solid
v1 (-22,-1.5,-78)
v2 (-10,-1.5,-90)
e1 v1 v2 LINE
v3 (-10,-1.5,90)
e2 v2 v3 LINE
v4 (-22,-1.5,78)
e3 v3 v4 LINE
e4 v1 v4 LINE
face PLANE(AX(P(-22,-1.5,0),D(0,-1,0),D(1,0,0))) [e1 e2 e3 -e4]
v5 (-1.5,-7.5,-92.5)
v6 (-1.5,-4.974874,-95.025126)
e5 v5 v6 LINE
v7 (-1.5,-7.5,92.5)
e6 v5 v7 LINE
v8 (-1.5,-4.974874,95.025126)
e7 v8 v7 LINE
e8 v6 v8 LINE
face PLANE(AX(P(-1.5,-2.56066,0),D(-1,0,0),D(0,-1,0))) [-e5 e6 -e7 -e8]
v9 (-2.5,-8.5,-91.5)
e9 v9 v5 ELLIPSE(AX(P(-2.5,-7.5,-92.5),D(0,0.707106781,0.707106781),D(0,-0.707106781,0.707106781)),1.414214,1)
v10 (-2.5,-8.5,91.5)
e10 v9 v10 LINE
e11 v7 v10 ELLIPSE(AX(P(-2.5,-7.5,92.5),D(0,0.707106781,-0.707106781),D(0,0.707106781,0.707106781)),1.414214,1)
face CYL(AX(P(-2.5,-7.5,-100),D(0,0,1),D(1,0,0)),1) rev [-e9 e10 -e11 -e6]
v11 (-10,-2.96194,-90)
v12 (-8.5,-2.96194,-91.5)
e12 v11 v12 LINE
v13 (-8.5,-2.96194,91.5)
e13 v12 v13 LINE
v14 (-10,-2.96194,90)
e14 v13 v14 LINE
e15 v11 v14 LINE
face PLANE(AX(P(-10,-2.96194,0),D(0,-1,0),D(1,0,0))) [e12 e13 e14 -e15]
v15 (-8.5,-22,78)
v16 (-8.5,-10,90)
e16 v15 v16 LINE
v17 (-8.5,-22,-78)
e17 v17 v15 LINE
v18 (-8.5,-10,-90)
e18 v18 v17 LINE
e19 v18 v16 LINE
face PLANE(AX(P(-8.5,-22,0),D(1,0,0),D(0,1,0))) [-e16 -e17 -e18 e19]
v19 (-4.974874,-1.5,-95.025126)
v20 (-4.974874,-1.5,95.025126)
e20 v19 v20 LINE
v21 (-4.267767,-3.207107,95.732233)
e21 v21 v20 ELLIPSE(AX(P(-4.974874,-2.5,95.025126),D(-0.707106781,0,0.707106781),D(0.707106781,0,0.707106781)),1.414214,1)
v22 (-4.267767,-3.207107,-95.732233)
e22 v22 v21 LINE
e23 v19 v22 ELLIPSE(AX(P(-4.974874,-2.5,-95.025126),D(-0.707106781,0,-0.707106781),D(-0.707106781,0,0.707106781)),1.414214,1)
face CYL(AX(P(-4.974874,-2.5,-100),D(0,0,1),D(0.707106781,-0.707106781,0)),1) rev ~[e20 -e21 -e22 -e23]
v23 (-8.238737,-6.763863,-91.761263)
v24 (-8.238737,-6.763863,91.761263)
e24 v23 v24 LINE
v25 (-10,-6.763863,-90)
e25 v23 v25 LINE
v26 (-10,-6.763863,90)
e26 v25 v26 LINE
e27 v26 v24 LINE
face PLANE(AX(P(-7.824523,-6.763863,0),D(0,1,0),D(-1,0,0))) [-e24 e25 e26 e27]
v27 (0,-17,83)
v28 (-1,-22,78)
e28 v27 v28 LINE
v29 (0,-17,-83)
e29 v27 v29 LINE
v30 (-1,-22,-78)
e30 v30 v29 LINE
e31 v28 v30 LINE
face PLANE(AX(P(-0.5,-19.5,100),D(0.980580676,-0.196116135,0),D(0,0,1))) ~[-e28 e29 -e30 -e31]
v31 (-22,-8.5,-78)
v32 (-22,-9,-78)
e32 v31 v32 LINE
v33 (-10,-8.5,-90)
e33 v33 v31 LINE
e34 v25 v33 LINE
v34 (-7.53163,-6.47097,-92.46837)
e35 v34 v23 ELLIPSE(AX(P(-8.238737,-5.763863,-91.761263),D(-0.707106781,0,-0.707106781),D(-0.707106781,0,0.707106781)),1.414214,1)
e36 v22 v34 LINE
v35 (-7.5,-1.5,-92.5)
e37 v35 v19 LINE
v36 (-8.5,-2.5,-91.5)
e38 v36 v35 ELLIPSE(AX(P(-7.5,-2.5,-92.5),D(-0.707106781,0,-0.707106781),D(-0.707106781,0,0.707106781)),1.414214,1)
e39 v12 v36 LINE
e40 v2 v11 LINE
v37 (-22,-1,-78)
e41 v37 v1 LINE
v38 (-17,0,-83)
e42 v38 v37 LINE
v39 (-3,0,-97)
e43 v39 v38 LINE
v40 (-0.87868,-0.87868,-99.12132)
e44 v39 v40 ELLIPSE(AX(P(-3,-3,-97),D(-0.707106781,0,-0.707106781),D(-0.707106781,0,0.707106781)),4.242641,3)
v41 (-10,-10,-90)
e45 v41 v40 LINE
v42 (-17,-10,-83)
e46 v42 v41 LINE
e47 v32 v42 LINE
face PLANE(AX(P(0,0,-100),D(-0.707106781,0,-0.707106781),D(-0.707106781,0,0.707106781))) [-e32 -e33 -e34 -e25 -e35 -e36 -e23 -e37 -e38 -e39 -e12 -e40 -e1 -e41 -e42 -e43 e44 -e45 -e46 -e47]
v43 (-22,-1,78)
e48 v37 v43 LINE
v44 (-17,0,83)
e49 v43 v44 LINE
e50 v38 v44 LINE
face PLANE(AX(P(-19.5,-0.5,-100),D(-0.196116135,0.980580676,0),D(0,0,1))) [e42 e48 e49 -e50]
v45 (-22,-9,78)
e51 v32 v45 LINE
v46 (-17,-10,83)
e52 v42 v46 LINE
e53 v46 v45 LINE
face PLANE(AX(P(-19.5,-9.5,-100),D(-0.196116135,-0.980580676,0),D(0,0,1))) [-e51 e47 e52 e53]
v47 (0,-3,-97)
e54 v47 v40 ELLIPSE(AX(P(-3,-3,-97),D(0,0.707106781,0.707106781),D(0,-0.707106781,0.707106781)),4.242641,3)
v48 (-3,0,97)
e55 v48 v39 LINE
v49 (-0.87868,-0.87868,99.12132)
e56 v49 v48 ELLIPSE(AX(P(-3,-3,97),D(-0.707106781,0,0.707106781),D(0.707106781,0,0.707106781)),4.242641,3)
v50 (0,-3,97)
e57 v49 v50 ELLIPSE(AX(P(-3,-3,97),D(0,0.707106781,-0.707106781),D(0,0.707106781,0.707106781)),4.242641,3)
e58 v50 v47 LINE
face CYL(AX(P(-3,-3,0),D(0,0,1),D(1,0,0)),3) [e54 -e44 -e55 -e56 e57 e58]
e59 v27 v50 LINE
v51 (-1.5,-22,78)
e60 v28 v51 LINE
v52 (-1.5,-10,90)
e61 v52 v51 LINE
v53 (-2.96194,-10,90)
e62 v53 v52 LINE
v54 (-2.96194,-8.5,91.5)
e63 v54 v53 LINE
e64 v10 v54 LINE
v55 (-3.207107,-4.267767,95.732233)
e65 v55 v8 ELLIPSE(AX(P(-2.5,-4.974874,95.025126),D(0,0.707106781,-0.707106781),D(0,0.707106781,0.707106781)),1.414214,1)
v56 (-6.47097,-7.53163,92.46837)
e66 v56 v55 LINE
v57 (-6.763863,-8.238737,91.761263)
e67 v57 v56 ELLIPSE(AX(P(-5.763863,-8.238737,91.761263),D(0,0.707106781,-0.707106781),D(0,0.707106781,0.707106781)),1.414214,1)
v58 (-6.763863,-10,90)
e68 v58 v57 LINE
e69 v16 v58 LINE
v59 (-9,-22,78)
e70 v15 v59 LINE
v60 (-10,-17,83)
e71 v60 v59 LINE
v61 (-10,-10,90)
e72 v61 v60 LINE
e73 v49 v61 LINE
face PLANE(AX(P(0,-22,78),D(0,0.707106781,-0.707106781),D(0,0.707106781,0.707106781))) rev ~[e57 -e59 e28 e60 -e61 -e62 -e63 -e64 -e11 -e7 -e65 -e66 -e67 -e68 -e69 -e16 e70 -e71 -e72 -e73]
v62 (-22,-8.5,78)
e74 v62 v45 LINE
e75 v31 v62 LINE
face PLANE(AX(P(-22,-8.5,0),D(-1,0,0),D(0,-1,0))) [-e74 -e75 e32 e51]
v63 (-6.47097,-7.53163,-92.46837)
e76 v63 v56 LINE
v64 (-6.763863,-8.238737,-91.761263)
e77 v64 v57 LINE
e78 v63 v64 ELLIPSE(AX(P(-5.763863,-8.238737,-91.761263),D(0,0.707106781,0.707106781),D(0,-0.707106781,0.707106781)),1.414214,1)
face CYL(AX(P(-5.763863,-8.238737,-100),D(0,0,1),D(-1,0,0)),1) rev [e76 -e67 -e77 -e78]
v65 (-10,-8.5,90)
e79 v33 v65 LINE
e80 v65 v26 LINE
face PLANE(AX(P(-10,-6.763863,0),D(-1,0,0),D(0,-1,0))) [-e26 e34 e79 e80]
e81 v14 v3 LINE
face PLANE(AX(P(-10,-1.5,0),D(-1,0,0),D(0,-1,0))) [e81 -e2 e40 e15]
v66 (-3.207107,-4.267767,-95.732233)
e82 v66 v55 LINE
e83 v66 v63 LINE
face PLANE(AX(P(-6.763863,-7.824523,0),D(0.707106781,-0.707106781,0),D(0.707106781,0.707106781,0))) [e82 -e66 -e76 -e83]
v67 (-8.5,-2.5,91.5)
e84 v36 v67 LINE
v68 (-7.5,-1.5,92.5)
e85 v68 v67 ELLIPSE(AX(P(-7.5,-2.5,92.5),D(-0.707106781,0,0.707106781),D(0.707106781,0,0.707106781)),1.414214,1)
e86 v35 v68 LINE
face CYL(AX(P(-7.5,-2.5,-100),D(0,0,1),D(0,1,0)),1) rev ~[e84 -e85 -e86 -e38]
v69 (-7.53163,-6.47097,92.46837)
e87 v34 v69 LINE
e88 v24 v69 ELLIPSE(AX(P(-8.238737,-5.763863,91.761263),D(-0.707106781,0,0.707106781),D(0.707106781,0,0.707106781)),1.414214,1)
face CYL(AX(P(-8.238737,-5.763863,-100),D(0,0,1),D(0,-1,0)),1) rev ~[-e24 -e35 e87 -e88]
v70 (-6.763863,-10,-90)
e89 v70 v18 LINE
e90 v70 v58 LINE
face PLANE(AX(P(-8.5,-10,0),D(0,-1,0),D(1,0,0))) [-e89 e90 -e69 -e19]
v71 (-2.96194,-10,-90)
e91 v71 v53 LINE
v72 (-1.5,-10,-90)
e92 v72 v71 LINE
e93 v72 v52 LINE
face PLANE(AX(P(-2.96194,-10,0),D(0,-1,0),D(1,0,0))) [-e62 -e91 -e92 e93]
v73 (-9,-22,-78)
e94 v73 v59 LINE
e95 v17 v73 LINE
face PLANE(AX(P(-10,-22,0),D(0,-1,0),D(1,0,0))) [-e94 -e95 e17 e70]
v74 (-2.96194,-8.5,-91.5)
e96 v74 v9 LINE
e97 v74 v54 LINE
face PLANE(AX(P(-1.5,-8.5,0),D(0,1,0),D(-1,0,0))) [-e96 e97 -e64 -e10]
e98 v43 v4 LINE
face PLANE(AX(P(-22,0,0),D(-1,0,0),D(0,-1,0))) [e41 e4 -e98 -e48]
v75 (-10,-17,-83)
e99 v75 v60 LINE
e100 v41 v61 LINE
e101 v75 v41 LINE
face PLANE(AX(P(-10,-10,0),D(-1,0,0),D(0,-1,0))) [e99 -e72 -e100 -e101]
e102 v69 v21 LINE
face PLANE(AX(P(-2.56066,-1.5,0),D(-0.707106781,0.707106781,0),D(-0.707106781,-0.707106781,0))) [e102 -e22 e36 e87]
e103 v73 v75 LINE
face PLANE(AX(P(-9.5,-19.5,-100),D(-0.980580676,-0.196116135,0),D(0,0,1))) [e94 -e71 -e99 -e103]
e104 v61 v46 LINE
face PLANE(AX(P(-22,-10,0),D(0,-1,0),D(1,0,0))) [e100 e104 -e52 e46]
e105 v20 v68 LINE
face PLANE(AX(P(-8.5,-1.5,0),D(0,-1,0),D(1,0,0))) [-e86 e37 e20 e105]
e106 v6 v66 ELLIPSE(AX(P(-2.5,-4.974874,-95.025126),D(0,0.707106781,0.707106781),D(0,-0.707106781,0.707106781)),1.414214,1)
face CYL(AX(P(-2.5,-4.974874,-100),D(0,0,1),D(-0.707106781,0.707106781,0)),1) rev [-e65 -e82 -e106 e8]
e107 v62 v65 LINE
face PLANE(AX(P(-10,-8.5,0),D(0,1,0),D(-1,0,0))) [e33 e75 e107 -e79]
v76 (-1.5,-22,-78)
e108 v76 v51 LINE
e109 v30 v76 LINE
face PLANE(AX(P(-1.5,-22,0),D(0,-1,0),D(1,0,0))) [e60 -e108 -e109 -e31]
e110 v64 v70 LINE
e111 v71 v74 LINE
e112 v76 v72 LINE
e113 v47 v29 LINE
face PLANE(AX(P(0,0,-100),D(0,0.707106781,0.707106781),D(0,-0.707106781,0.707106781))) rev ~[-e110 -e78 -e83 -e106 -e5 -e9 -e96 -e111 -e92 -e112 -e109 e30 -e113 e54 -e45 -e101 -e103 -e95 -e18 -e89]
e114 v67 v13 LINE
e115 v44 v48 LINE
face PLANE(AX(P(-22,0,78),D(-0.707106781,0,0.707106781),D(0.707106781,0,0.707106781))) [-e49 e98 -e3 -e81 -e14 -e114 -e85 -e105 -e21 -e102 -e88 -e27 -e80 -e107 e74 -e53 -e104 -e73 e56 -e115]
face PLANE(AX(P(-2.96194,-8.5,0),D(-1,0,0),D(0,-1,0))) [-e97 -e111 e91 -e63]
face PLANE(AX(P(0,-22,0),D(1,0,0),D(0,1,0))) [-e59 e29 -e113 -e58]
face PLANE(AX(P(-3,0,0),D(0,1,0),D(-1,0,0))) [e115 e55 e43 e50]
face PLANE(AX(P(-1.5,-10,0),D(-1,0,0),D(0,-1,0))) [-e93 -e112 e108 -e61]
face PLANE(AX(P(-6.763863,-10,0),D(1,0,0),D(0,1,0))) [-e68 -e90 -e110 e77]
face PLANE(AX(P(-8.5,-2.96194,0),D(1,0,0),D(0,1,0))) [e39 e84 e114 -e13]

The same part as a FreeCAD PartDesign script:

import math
import FreeCAD as App
import Part
import Sketcher
Q = App.Units.Quantity


def edges_at(feature, points):
    """Names of the edges that pass closest to the given points."""
    edges = feature.Shape.Edges
    near = lambda p: min(range(len(edges)), key=lambda i: edges[i].distToShape(Part.Vertex(*p))[0])
    return sorted({f"Edge{near(p) + 1}" for p in points})


def add_polygon(sketch, points):
    """Adds a closed chain of lines whose ends are joined by coincident constraints."""
    first, n = sketch.GeometryCount, len(points)
    for a, b in zip(points, points[1:] + points[:1]):
        sketch.addGeometry(Part.LineSegment(App.Vector(*a, 0), App.Vector(*b, 0)), False)
    for i in range(n):
        sketch.addConstraint(Sketcher.Constraint("Coincident", first + i, 2, first + (i + 1) % n, 1))

doc = App.newDocument("Part")
body = doc.addObject("PartDesign::Body", "Body")

# Sketch on XY plane
sketch1 = body.newObject("Sketcher::SketchObject", "Sketch")
sketch1.AttachmentSupport = (doc.getObject("XY_Plane"), [""])
sketch1.MapMode = "FlatFace"
sketch1.addGeometry(Part.LineSegment(App.Vector(-3, 0, 0), App.Vector(-22, 0, 0)), False)
sketch1.addGeometry(Part.LineSegment(App.Vector(-22, 0, 0), App.Vector(-22, -1.5, 0)), False)
sketch1.addGeometry(Part.LineSegment(App.Vector(-22, -1.5, 0), App.Vector(-10, -1.5, 0)), False)
sketch1.addGeometry(Part.LineSegment(App.Vector(-10, -1.5, 0), App.Vector(-10, -3, 0)), False)
sketch1.addGeometry(Part.LineSegment(App.Vector(-10, -3, 0), App.Vector(-8.5, -3, 0)), False)
sketch1.addGeometry(Part.LineSegment(App.Vector(-8.5, -3, 0), App.Vector(-8.5, -1.5, 0)), False)
sketch1.addGeometry(Part.LineSegment(App.Vector(-8.5, -1.5, 0), App.Vector(-2.6, -1.5, 0)), False)
sketch1.addGeometry(Part.LineSegment(App.Vector(-2.6, -1.5, 0), App.Vector(-7.8, -6.8, 0)), False)
sketch1.addGeometry(Part.LineSegment(App.Vector(-7.8, -6.8, 0), App.Vector(-10, -6.8, 0)), False)
sketch1.addGeometry(Part.LineSegment(App.Vector(-10, -6.8, 0), App.Vector(-10, -8.5, 0)), False)
sketch1.addGeometry(Part.LineSegment(App.Vector(-10, -8.5, 0), App.Vector(-22, -8.5, 0)), False)
sketch1.addGeometry(Part.LineSegment(App.Vector(-22, -8.5, 0), App.Vector(-22, -10, 0)), False)
sketch1.addGeometry(Part.LineSegment(App.Vector(-22, -10, 0), App.Vector(-10, -10, 0)), False)
sketch1.addGeometry(Part.LineSegment(App.Vector(-10, -10, 0), App.Vector(-10, -22, 0)), False)
sketch1.addGeometry(Part.LineSegment(App.Vector(-10, -22, 0), App.Vector(-8.5, -22, 0)), False)
sketch1.addGeometry(Part.LineSegment(App.Vector(-8.5, -22, 0), App.Vector(-8.5, -10, 0)), False)
sketch1.addGeometry(Part.LineSegment(App.Vector(-8.5, -10, 0), App.Vector(-6.8, -10, 0)), False)
sketch1.addGeometry(Part.LineSegment(App.Vector(-6.8, -10, 0), App.Vector(-6.8, -7.8, 0)), False)
sketch1.addGeometry(Part.LineSegment(App.Vector(-6.8, -7.8, 0), App.Vector(-1.5, -2.6, 0)), False)
sketch1.addGeometry(Part.LineSegment(App.Vector(-1.5, -2.6, 0), App.Vector(-1.5, -8.5, 0)), False)
sketch1.addGeometry(Part.LineSegment(App.Vector(-1.5, -8.5, 0), App.Vector(-3, -8.5, 0)), False)
sketch1.addGeometry(Part.LineSegment(App.Vector(-3, -8.5, 0), App.Vector(-3, -10, 0)), False)
sketch1.addGeometry(Part.LineSegment(App.Vector(-3, -10, 0), App.Vector(-1.5, -10, 0)), False)
sketch1.addGeometry(Part.LineSegment(App.Vector(-1.5, -10, 0), App.Vector(-1.5, -22, 0)), False)
sketch1.addGeometry(Part.LineSegment(App.Vector(-1.5, -22, 0), App.Vector(0, -22, 0)), False)
sketch1.addGeometry(Part.LineSegment(App.Vector(0, -22, 0), App.Vector(0, -3, 0)), False)
sketch1.addGeometry(Part.ArcOfCircle(Part.Circle(App.Vector(-3, -3, 0), App.Vector(0, 0, 1), 3), math.radians(0), math.radians(90)), False)
sketch1.addConstraint(Sketcher.Constraint("Coincident", 0, 2, 1, 1))
sketch1.addConstraint(Sketcher.Constraint("Coincident", 1, 2, 2, 1))
sketch1.addConstraint(Sketcher.Constraint("Coincident", 2, 2, 3, 1))
sketch1.addConstraint(Sketcher.Constraint("Coincident", 3, 2, 4, 1))
sketch1.addConstraint(Sketcher.Constraint("Coincident", 4, 2, 5, 1))
sketch1.addConstraint(Sketcher.Constraint("Coincident", 5, 2, 6, 1))
sketch1.addConstraint(Sketcher.Constraint("Coincident", 6, 2, 7, 1))
sketch1.addConstraint(Sketcher.Constraint("Coincident", 7, 2, 8, 1))
sketch1.addConstraint(Sketcher.Constraint("Coincident", 8, 2, 9, 1))
sketch1.addConstraint(Sketcher.Constraint("Coincident", 9, 2, 10, 1))
sketch1.addConstraint(Sketcher.Constraint("Coincident", 10, 2, 11, 1))
sketch1.addConstraint(Sketcher.Constraint("Coincident", 11, 2, 12, 1))
sketch1.addConstraint(Sketcher.Constraint("Coincident", 12, 2, 13, 1))
sketch1.addConstraint(Sketcher.Constraint("Coincident", 13, 2, 14, 1))
sketch1.addConstraint(Sketcher.Constraint("Coincident", 14, 2, 15, 1))
sketch1.addConstraint(Sketcher.Constraint("Coincident", 15, 2, 16, 1))
sketch1.addConstraint(Sketcher.Constraint("Coincident", 16, 2, 17, 1))
sketch1.addConstraint(Sketcher.Constraint("Coincident", 17, 2, 18, 1))
sketch1.addConstraint(Sketcher.Constraint("Coincident", 18, 2, 19, 1))
sketch1.addConstraint(Sketcher.Constraint("Coincident", 19, 2, 20, 1))
sketch1.addConstraint(Sketcher.Constraint("Coincident", 20, 2, 21, 1))
sketch1.addConstraint(Sketcher.Constraint("Coincident", 21, 2, 22, 1))
sketch1.addConstraint(Sketcher.Constraint("Coincident", 22, 2, 23, 1))
sketch1.addConstraint(Sketcher.Constraint("Coincident", 23, 2, 24, 1))
sketch1.addConstraint(Sketcher.Constraint("Coincident", 24, 2, 25, 1))
sketch1.addConstraint(Sketcher.Constraint("Tangent", 25, 2, 26, 1))
sketch1.addConstraint(Sketcher.Constraint("Tangent", 26, 2, 0, 1))
sketch1.addConstraint(Sketcher.Constraint("Horizontal", 0))
sketch1.addConstraint(Sketcher.Constraint("Vertical", 1))
sketch1.addConstraint(Sketcher.Constraint("Horizontal", 2))
sketch1.addConstraint(Sketcher.Constraint("Vertical", 3))
sketch1.addConstraint(Sketcher.Constraint("Horizontal", 4))
sketch1.addConstraint(Sketcher.Constraint("Vertical", 5))
sketch1.addConstraint(Sketcher.Constraint("Horizontal", 6))
sketch1.addConstraint(Sketcher.Constraint("Horizontal", 8))
sketch1.addConstraint(Sketcher.Constraint("Vertical", 9))
sketch1.addConstraint(Sketcher.Constraint("Horizontal", 10))
sketch1.addConstraint(Sketcher.Constraint("Vertical", 11))
sketch1.addConstraint(Sketcher.Constraint("Horizontal", 12))
sketch1.addConstraint(Sketcher.Constraint("Vertical", 13))
sketch1.addConstraint(Sketcher.Constraint("Horizontal", 14))
sketch1.addConstraint(Sketcher.Constraint("Vertical", 15))
sketch1.addConstraint(Sketcher.Constraint("Horizontal", 16))
sketch1.addConstraint(Sketcher.Constraint("Vertical", 17))
sketch1.addConstraint(Sketcher.Constraint("Vertical", 19))
sketch1.addConstraint(Sketcher.Constraint("Horizontal", 20))
sketch1.addConstraint(Sketcher.Constraint("Vertical", 21))
sketch1.addConstraint(Sketcher.Constraint("Horizontal", 22))
sketch1.addConstraint(Sketcher.Constraint("Vertical", 23))
sketch1.addConstraint(Sketcher.Constraint("Horizontal", 24))
sketch1.addConstraint(Sketcher.Constraint("Vertical", 25))
sketch1.addConstraint(Sketcher.Constraint("PointOnObject", 0, 2, -1))
sketch1.addConstraint(Sketcher.Constraint("PointOnObject", 24, 2, -2))
sketch1.addConstraint(Sketcher.Constraint("Parallel", 7, 18))
sketch1.addConstraint(Sketcher.Constraint("Horizontal", 2, 2, 5, 2))
sketch1.addConstraint(Sketcher.Constraint("Horizontal", 12, 2, 15, 2))
sketch1.addConstraint(Sketcher.Constraint("Horizontal", 10, 2, 19, 2))
sketch1.addConstraint(Sketcher.Constraint("Horizontal", 16, 2, 21, 2))
sketch1.addConstraint(Sketcher.Constraint("Horizontal", 14, 2, 23, 2))
sketch1.addConstraint(Sketcher.Constraint("Vertical", 3, 2, 8, 2))
sketch1.addConstraint(Sketcher.Constraint("Vertical", 1, 2, 10, 2))
sketch1.addConstraint(Sketcher.Constraint("Vertical", 9, 2, 12, 2))
sketch1.addConstraint(Sketcher.Constraint("Vertical", 5, 2, 14, 2))
sketch1.addConstraint(Sketcher.Constraint("Vertical", 19, 2, 22, 2))
sketch1.addConstraint(Sketcher.Constraint("Equal", 14, 24))
sketch1.addConstraint(Sketcher.Constraint("Equal", 24, 1))
sketch1.addConstraint(Sketcher.Constraint("Equal", 22, 3))
sketch1.addConstraint(Sketcher.Constraint("Equal", 16, 9))
sketch1.addConstraint(Sketcher.Constraint("Equal", 1, 11))
sketch1.addConstraint(Sketcher.Constraint("Equal", 12, 13))
sketch1.addConstraint(Sketcher.Constraint("Equal", 8, 17))
sketch1.addConstraint(Sketcher.Constraint("Equal", 6, 19))
sketch1.addConstraint(Sketcher.Constraint("Equal", 0, 25))
sketch1.addConstraint(Sketcher.Constraint("Radius", 26, Q("3 mm")))
sketch1.addConstraint(Sketcher.Constraint("DistanceX", 0, 2, 0, 1, Q("19 mm")))
sketch1.addConstraint(Sketcher.Constraint("DistanceX", 2, 1, 2, 2, Q("12 mm")))
sketch1.addConstraint(Sketcher.Constraint("DistanceX", 4, 1, 4, 2, Q("1.5 mm")))
sketch1.addConstraint(Sketcher.Constraint("DistanceX", 6, 1, 6, 2, Q("5.93934 mm")))
sketch1.addConstraint(Sketcher.Constraint("DistanceX", 20, 2, 20, 1, Q("1.46194 mm")))
sketch1.addConstraint(Sketcher.Constraint("DistanceX", 8, 2, 8, 1, Q("2.175477 mm")))
pad1 = body.newObject("PartDesign::Pad", "Pad")
pad1.Profile = sketch1
pad1.Length = 200
pad1.Midplane = True
doc.recompute()

chamfer = body.newObject("PartDesign::Chamfer", "Chamfer")
chamfer.Base = (pad1, edges_at(pad1, [(-22, -10, 0)]))
chamfer.ChamferType = "Two distances"
chamfer.Size = 5
chamfer.Size2 = 1
chamfer.FlipDirection = True
doc.recompute()

chamfer2 = body.newObject("PartDesign::Chamfer", "Chamfer001")
chamfer2.Base = (chamfer, edges_at(chamfer, [(0, -22, 0)]))
chamfer2.ChamferType = "Two distances"
chamfer2.Size = 5
chamfer2.Size2 = 1
doc.recompute()

chamfer3 = body.newObject("PartDesign::Chamfer", "Chamfer002")
chamfer3.Base = (chamfer2, edges_at(chamfer2, [(-22, 0, 0)]))
chamfer3.ChamferType = "Two distances"
chamfer3.Size = 1
chamfer3.Size2 = 5
chamfer3.FlipDirection = True
doc.recompute()

chamfer4 = body.newObject("PartDesign::Chamfer", "Chamfer003")
chamfer4.Base = (chamfer3, edges_at(chamfer3, [(-10, -22, 0)]))
chamfer4.ChamferType = "Two distances"
chamfer4.Size = 1
chamfer4.Size2 = 5
doc.recompute()

fillet = body.newObject("PartDesign::Fillet", "Fillet")
fillet.Base = (chamfer4, edges_at(chamfer4, [
    (-2.561, -1.5, 0),
    (-1.5, -2.561, 0),
    (-6.764, -7.825, 0),
    (-7.825, -6.764, 0),
    (-1.5, -8.5, 0),
    (-8.5, -1.5, 0),
]))
fillet.Radius = 1

# Sketch on XZ plane
sketch2 = body.newObject("Sketcher::SketchObject", "Sketch001")
sketch2.AttachmentSupport = (doc.getObject("XZ_Plane"), [""])
sketch2.MapMode = "FlatFace"
add_polygon(sketch2, [(0, 100), (-22, 100), (-22, 78)])  # lines 0-2
add_polygon(sketch2, [(-22, -78), (-22, -100), (0, -100)])  # lines 3-5
sketch2.addConstraint(Sketcher.Constraint("Horizontal", 0))
sketch2.addConstraint(Sketcher.Constraint("Vertical", 1))
sketch2.addConstraint(Sketcher.Constraint("Vertical", 3))
sketch2.addConstraint(Sketcher.Constraint("Horizontal", 4))
sketch2.addConstraint(Sketcher.Constraint("Symmetric", 2, 2, 4, 2, -1, 1))
sketch2.addConstraint(Sketcher.Constraint("Symmetric", 1, 2, 5, 2, -1))
sketch2.addConstraint(Sketcher.Constraint("PointOnObject", 2, 2, -2))
sketch2.addConstraint(Sketcher.Constraint("Perpendicular", 2, 5))
sketch2.addConstraint(Sketcher.Constraint("DistanceX", 0, 2, 0, 1, Q("22 mm")))
sketch2.addConstraint(Sketcher.Constraint("DistanceY", -1, 1, 0, 2, Q("100 mm")))
pocket1 = body.newObject("PartDesign::Pocket", "Pocket")
pocket1.Profile = sketch2
pocket1.Length = 25
pocket1.Reversed = True

# Sketch on YZ plane
sketch3 = body.newObject("Sketcher::SketchObject", "Sketch002")
sketch3.AttachmentSupport = (doc.getObject("YZ_Plane"), [""])
sketch3.MapMode = "FlatFace"
add_polygon(sketch3, [(-22, 78), (0, 100), (-22, 100)])  # lines 0-2
add_polygon(sketch3, [(-22, -100), (0, -100), (-22, -78)])  # lines 3-5
sketch3.addConstraint(Sketcher.Constraint("Horizontal", 1))
sketch3.addConstraint(Sketcher.Constraint("Vertical", 2))
sketch3.addConstraint(Sketcher.Constraint("Horizontal", 3))
sketch3.addConstraint(Sketcher.Constraint("Vertical", 5))
sketch3.addConstraint(Sketcher.Constraint("Symmetric", 0, 2, 3, 2, -1, 1))
sketch3.addConstraint(Sketcher.Constraint("Symmetric", 2, 2, 4, 2, -1))
sketch3.addConstraint(Sketcher.Constraint("PointOnObject", 0, 2, -2))
sketch3.addConstraint(Sketcher.Constraint("Perpendicular", 0, 4))
sketch3.addConstraint(Sketcher.Constraint("DistanceX", 1, 2, 1, 1, Q("22 mm")))
sketch3.addConstraint(Sketcher.Constraint("DistanceY", -1, 1, 0, 2, Q("100 mm")))
pocket2 = body.newObject("PartDesign::Pocket", "Pocket001")
pocket2.Profile = sketch3
pocket2.Length = 25

doc.recompute()
